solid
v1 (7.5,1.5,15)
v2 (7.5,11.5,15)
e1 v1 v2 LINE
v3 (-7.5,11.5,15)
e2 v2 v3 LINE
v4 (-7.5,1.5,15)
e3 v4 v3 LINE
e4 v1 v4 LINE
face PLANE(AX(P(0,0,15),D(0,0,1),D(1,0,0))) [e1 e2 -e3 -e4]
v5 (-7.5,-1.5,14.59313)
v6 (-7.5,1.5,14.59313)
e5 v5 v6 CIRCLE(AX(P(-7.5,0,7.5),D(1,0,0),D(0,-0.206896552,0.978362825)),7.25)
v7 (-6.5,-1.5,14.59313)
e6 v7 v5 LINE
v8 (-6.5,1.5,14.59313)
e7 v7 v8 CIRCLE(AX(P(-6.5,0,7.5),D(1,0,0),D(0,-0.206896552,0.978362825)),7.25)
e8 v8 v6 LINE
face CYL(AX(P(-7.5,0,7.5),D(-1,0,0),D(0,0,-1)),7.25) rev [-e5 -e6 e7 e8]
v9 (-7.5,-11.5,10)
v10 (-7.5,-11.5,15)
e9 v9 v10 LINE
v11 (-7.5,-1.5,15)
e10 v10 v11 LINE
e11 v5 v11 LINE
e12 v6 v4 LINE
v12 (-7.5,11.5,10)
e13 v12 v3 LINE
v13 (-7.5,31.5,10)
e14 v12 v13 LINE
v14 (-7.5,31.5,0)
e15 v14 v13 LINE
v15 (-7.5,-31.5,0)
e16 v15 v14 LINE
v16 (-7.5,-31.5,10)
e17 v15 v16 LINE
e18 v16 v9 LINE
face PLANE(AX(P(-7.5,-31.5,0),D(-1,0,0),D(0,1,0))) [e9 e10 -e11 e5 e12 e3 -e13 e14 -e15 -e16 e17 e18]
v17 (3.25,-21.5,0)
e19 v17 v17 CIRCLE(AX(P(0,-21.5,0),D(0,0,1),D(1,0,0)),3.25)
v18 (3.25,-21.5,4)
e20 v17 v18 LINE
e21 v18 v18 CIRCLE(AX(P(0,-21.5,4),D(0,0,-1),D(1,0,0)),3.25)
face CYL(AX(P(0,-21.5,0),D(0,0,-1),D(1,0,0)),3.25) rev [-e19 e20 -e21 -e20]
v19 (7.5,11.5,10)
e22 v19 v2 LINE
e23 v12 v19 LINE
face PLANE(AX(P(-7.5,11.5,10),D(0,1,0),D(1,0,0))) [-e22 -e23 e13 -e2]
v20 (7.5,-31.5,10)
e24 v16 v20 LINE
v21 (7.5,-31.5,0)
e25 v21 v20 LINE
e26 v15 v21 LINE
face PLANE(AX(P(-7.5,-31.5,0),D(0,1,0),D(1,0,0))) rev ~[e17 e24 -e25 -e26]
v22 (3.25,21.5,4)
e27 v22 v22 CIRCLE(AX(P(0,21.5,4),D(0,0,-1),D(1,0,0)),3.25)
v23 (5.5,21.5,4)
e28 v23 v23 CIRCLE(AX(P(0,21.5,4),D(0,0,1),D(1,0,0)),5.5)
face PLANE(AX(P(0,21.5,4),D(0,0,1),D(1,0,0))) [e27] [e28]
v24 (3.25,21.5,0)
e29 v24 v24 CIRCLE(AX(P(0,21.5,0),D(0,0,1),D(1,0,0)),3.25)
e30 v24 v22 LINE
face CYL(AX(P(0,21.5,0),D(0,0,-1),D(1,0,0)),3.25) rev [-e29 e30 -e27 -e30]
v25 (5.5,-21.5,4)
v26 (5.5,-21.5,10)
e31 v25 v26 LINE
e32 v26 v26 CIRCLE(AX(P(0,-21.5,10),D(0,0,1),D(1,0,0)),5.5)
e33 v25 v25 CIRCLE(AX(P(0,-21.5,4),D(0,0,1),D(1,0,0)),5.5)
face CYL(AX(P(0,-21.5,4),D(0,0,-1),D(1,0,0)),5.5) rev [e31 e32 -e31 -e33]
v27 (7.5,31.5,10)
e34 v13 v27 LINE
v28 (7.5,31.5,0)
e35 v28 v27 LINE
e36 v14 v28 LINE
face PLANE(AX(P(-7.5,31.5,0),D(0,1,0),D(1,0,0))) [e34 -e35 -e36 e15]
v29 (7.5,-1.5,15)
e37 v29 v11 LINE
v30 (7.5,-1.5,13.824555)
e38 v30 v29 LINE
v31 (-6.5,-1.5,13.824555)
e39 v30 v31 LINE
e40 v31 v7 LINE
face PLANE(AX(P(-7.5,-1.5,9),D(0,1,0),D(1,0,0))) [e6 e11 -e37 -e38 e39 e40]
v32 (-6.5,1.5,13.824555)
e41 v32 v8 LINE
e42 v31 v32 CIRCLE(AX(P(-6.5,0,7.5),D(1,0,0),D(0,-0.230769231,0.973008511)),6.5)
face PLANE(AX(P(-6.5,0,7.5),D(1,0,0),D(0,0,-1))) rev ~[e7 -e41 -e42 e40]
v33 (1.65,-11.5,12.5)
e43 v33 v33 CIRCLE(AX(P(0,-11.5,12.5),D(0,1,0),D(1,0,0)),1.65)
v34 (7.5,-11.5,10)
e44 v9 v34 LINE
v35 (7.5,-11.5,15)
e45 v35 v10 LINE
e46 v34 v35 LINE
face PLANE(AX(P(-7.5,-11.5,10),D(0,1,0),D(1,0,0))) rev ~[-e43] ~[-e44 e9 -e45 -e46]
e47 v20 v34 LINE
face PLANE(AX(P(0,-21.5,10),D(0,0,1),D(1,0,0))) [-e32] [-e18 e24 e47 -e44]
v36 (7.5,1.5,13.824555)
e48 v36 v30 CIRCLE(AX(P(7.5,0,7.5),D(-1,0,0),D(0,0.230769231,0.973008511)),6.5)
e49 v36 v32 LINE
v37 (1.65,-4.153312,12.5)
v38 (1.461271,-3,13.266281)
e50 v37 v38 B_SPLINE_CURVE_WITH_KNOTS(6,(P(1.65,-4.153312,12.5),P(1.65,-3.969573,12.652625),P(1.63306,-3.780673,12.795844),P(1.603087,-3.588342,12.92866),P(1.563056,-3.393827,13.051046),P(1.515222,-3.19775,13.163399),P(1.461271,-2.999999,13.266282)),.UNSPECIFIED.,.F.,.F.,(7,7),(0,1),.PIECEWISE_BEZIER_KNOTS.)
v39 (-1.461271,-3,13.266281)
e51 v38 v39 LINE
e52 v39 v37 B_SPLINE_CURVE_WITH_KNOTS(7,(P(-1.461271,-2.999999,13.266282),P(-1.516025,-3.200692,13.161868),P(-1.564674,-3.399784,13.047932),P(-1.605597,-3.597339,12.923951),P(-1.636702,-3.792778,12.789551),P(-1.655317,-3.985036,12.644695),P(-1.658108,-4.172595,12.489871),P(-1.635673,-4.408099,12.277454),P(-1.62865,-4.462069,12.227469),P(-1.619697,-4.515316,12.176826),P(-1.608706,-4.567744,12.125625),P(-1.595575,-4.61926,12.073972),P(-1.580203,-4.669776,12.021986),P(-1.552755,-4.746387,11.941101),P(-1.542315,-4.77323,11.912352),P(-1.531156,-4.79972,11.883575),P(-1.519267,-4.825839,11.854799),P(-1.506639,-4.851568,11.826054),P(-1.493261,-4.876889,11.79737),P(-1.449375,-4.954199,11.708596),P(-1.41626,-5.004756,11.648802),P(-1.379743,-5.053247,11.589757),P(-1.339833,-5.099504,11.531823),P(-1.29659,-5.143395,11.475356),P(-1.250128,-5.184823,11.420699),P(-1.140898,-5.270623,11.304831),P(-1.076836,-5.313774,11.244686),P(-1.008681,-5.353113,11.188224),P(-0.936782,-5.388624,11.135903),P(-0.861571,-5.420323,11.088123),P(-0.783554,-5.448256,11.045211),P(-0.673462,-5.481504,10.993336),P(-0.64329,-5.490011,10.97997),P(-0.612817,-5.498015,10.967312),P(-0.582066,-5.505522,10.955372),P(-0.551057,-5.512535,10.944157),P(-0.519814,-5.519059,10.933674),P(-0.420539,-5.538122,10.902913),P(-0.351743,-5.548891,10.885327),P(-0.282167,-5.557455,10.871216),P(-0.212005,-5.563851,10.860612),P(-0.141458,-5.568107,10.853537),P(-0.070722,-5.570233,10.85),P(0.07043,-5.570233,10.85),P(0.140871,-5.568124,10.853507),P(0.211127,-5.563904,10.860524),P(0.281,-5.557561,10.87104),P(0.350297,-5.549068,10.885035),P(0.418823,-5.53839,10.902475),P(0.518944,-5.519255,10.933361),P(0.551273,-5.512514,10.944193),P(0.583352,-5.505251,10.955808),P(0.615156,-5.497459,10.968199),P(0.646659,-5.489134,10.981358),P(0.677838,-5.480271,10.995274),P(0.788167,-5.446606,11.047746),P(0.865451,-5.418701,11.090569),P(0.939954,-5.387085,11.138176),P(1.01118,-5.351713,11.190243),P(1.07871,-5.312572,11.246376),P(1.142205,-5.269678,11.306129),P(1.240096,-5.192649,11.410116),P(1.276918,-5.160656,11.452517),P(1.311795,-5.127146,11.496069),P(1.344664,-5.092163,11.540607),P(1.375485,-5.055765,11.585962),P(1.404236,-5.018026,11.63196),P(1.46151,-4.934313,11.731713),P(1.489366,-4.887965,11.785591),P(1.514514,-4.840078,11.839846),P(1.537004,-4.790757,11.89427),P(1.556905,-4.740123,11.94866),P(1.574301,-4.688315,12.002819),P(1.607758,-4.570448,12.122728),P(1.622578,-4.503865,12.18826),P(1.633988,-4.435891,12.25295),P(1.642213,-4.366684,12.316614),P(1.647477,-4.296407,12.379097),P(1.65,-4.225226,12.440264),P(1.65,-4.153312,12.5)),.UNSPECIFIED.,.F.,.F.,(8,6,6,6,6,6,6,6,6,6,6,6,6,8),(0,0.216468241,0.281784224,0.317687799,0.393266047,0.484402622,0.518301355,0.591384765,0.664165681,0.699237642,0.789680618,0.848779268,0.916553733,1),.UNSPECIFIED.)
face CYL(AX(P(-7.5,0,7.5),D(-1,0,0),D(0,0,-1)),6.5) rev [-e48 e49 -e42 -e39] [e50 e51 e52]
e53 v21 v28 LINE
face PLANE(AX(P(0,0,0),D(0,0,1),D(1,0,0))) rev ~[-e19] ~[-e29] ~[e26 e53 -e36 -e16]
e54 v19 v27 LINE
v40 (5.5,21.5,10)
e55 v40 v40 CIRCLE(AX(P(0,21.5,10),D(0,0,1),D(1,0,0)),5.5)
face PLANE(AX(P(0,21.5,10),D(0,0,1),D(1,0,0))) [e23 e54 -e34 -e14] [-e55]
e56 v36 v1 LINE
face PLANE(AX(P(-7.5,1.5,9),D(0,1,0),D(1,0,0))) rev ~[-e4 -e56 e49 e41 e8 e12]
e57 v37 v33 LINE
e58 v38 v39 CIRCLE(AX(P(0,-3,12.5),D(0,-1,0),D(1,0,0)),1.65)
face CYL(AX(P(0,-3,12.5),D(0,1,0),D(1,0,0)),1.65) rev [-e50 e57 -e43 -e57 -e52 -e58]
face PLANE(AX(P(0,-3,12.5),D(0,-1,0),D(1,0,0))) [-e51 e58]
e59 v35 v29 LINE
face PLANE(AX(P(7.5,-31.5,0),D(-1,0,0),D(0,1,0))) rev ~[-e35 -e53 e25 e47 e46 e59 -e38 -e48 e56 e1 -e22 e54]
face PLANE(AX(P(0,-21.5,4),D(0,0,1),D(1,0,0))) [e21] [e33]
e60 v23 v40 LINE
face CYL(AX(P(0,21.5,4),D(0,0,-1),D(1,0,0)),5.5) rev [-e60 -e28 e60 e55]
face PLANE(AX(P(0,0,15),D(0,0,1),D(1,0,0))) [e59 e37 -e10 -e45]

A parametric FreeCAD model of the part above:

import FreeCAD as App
import Part
import Sketcher

V = App.Vector
Q = App.Units.Quantity

doc = App.newDocument("Part")
params = doc.addObject("Spreadsheet::Sheet", "Params")
for row, (alias, value) in enumerate([
    ("sketch1_diameter", "3.3 mm"),
    ("pad1_length", "10 mm"),
    ("sketch2_width", "15 mm"),
    ("sketch2_height", "3 mm"),
    ("pad2_length", "10 mm"),
    ("sketch3_diameter", "14.5 mm"),
    ("pad3_length", "1 mm"),
    ("sketch4_diameter", "13 mm"),
    ("pad4_length", "32 mm"),
    ("sketch5_diameter", "6.5 mm"),
    ("pad5_length", "10 mm"),
    ("sketch6_diameter", "11 mm"),
    ("pad6_length", "6 mm"),
    ("sketch7_diameter", "6.5 mm"),
    ("pad7_length", "10 mm"),
    ("sketch8_diameter", "11 mm"),
    ("pad8_length", "6 mm"),
    ("sketch9_width", "15 mm"),
    ("sketch9_height", "20 mm"),
    ("pad9_length", "20 mm"),
    ("sketch10_width", "15 mm"),
    ("sketch10_height", "20 mm"),
    ("pad10_length", "20 mm"),
    ("sketch11_width", "15 mm"),
    ("sketch11_height", "63 mm"),
    ("pad11_length", "15 mm"),
], start=1):
    params.set(f"A{row}", alias)
    params.set(f"B{row}", "=" + value)
    params.setAlias(f"B{row}", alias)

body = doc.addObject("PartDesign::Body", "Body")

# Sketch on XZ plane
sketch1 = body.newObject("Sketcher::SketchObject", "Sketch")
sketch1.AttachmentSupport = (doc.getObject("XZ_Plane"), [""])
sketch1.MapMode = "FlatFace"
sketch1.AttachmentOffset = App.Placement(V(0, 0, 3), App.Rotation())
sketch1.addGeometry(Part.Circle(V(0, 12.5, 0), V(0, 0, 1), 1.6), False)
sketch1.addConstraint([
    Sketcher.Constraint("PointOnObject", 0, 3, -2),
    Sketcher.Constraint("Diameter", 0, Q("3.3 mm")),
    Sketcher.Constraint("DistanceY", -1, 1, 0, 3, Q("12.5 mm")),
])
sketch1.setExpression("Constraints[1]", "Params.sketch1_diameter")
pad1 = body.newObject("PartDesign::Pad", "Pad")
pad1.Profile = sketch1
pad1.setExpression("Length", "Params.pad1_length")
body2 = doc.addObject("PartDesign::Body", "Body001")

# Sketch on XY plane
sketch2 = body2.newObject("Sketcher::SketchObject", "Sketch001")
sketch2.AttachmentSupport = (doc.getObject("XY_Plane001"), [""])
sketch2.MapMode = "FlatFace"
sketch2.AttachmentOffset = App.Placement(V(0, 0, 9), App.Rotation())
sketch2.addGeometry([
    Part.LineSegment(V(-7.5, 1.5, 0), V(-7.5, -1.5, 0)),
    Part.LineSegment(V(-7.5, -1.5, 0), V(7.5, -1.5, 0)),
    Part.LineSegment(V(7.5, -1.5, 0), V(7.5, 1.5, 0)),
    Part.LineSegment(V(7.5, 1.5, 0), V(-7.5, 1.5, 0)),
], False)
sketch2.addConstraint([
    Sketcher.Constraint("Coincident", 0, 2, 1, 1),
    Sketcher.Constraint("Coincident", 1, 2, 2, 1),
    Sketcher.Constraint("Coincident", 2, 2, 3, 1),
    Sketcher.Constraint("Coincident", 3, 2, 0, 1),
    Sketcher.Constraint("Vertical", 0),
    Sketcher.Constraint("Horizontal", 1),
    Sketcher.Constraint("Vertical", 2),
    Sketcher.Constraint("Horizontal", 3),
    Sketcher.Constraint("Symmetric", 0, 2, 2, 2, -1, 1),
    Sketcher.Constraint("DistanceX", 1, 1, 1, 2, Q("15 mm")),
    Sketcher.Constraint("DistanceY", 0, 2, 0, 1, Q("3 mm")),
])
sketch2.setExpression("Constraints[9]", "Params.sketch2_width")
sketch2.setExpression("Constraints[10]", "Params.sketch2_height")
pad2 = body2.newObject("PartDesign::Pad", "Pad001")
pad2.Profile = sketch2
pad2.setExpression("Length", "Params.pad2_length")
body3 = doc.addObject("PartDesign::Body", "Body002")

# Sketch on XY plane
sketch3 = body3.newObject("Sketcher::SketchObject", "Sketch002")
sketch3.AttachmentSupport = (doc.getObject("XY_Plane002"), [""])
sketch3.MapMode = "FlatFace"
sketch3.addGeometry(Part.Circle(V(0, 0, 0), V(0, 0, 1), 7), False)
sketch3.addConstraint([
    Sketcher.Constraint("Coincident", 0, 3, -1, 1),
    Sketcher.Constraint("Diameter", 0, Q("14.5 mm")),
])
sketch3.setExpression("Constraints[1]", "Params.sketch3_diameter")
pad3 = body3.newObject("PartDesign::Pad", "Pad002")
pad3.Profile = sketch3
pad3.setExpression("Length", "Params.pad3_length")
body4 = doc.addObject("PartDesign::Body", "Body003")

# Sketch on XY plane
sketch4 = body4.newObject("Sketcher::SketchObject", "Sketch003")
sketch4.AttachmentSupport = (doc.getObject("XY_Plane003"), [""])
sketch4.MapMode = "FlatFace"
sketch4.addGeometry(Part.Circle(V(0, 0, 0), V(0, 0, 1), 6), False)
sketch4.addConstraint([
    Sketcher.Constraint("Coincident", 0, 3, -1, 1),
    Sketcher.Constraint("Diameter", 0, Q("13 mm")),
])
sketch4.setExpression("Constraints[1]", "Params.sketch4_diameter")
pad4 = body4.newObject("PartDesign::Pad", "Pad003")
pad4.Profile = sketch4
pad4.setExpression("Length", "Params.pad4_length")
doc.recompute()

boolean = body4.newObject("PartDesign::Boolean", "Boolean")
boolean.Type = "Fuse"
boolean.addObjects([body3])
body5 = doc.addObject("PartDesign::Body", "Body004")
doc.recompute()

body4.Placement = App.Placement(V(-7.5, 0, 7.5), App.Rotation(V(0, 1, 0), 90))
boolean2 = body5.newObject("PartDesign::Boolean", "Boolean001")
boolean2.Type = "Fuse"
boolean2.addObjects([body4])
body6 = doc.addObject("PartDesign::Body", "Body005")

# Sketch on XY plane
sketch5 = body6.newObject("Sketcher::SketchObject", "Sketch004")
sketch5.AttachmentSupport = (doc.getObject("XY_Plane005"), [""])
sketch5.MapMode = "FlatFace"
sketch5.addGeometry(Part.Circle(V(0, 0, 0), V(0, 0, 1), 3.2), False)
sketch5.addConstraint([
    Sketcher.Constraint("Coincident", 0, 3, -1, 1),
    Sketcher.Constraint("Diameter", 0, Q("6.5 mm")),
])
sketch5.setExpression("Constraints[1]", "Params.sketch5_diameter")
pad5 = body6.newObject("PartDesign::Pad", "Pad004")
pad5.Profile = sketch5
pad5.setExpression("Length", "Params.pad5_length")
body7 = doc.addObject("PartDesign::Body", "Body006")

# Sketch on XY plane
sketch6 = body7.newObject("Sketcher::SketchObject", "Sketch005")
sketch6.AttachmentSupport = (doc.getObject("XY_Plane006"), [""])
sketch6.MapMode = "FlatFace"
sketch6.AttachmentOffset = App.Placement(V(0, 0, 4), App.Rotation())
sketch6.addGeometry(Part.Circle(V(0, 0, 0), V(0, 0, 1), 6), False)
sketch6.addConstraint([
    Sketcher.Constraint("Coincident", 0, 3, -1, 1),
    Sketcher.Constraint("Diameter", 0, Q("11 mm")),
])
sketch6.setExpression("Constraints[1]", "Params.sketch6_diameter")
pad6 = body7.newObject("PartDesign::Pad", "Pad005")
pad6.Profile = sketch6
pad6.setExpression("Length", "Params.pad6_length")
doc.recompute()

boolean3 = body7.newObject("PartDesign::Boolean", "Boolean002")
boolean3.Type = "Fuse"
boolean3.addObjects([body6])
body8 = doc.addObject("PartDesign::Body", "Body007")
doc.recompute()

body7.Placement = App.Placement(V(0, -21.5, 0), App.Rotation(V(0, 0, 1), 0))
boolean4 = body8.newObject("PartDesign::Boolean", "Boolean003")
boolean4.Type = "Fuse"
boolean4.addObjects([body7])
body9 = doc.addObject("PartDesign::Body", "Body008")

# Sketch on XY plane
sketch7 = body9.newObject("Sketcher::SketchObject", "Sketch006")
sketch7.AttachmentSupport = (doc.getObject("XY_Plane008"), [""])
sketch7.MapMode = "FlatFace"
sketch7.addGeometry(Part.Circle(V(0, 0, 0), V(0, 0, 1), 3.2), False)
sketch7.addConstraint([
    Sketcher.Constraint("Coincident", 0, 3, -1, 1),
    Sketcher.Constraint("Diameter", 0, Q("6.5 mm")),
])
sketch7.setExpression("Constraints[1]", "Params.sketch7_diameter")
pad7 = body9.newObject("PartDesign::Pad", "Pad006")
pad7.Profile = sketch7
pad7.setExpression("Length", "Params.pad7_length")
body10 = doc.addObject("PartDesign::Body", "Body009")

# Sketch on XY plane
sketch8 = body10.newObject("Sketcher::SketchObject", "Sketch007")
sketch8.AttachmentSupport = (doc.getObject("XY_Plane009"), [""])
sketch8.MapMode = "FlatFace"
sketch8.AttachmentOffset = App.Placement(V(0, 0, 4), App.Rotation())
sketch8.addGeometry(Part.Circle(V(0, 0, 0), V(0, 0, 1), 6), False)
sketch8.addConstraint([
    Sketcher.Constraint("Coincident", 0, 3, -1, 1),
    Sketcher.Constraint("Diameter", 0, Q("11 mm")),
])
sketch8.setExpression("Constraints[1]", "Params.sketch8_diameter")
pad8 = body10.newObject("PartDesign::Pad", "Pad007")
pad8.Profile = sketch8
pad8.setExpression("Length", "Params.pad8_length")
doc.recompute()

boolean5 = body10.newObject("PartDesign::Boolean", "Boolean004")
boolean5.Type = "Fuse"
boolean5.addObjects([body9])
body11 = doc.addObject("PartDesign::Body", "Body010")
body11.AllowCompound = True
doc.recompute()

body10.Placement = App.Placement(V(0, 21.5, 0), App.Rotation(V(0, 0, 1), 0))
boolean6 = body11.newObject("PartDesign::Boolean", "Boolean005")
boolean6.Type = "Fuse"
boolean6.addObjects([body10])
doc.recompute()

boolean7 = body11.newObject("PartDesign::Boolean", "Boolean006")
boolean7.Type = "Fuse"
boolean7.addObjects([body8])
body12 = doc.addObject("PartDesign::Body", "Body011")

# Sketch on XY plane
sketch9 = body12.newObject("Sketcher::SketchObject", "Sketch008")
sketch9.AttachmentSupport = (doc.getObject("XY_Plane011"), [""])
sketch9.MapMode = "FlatFace"
sketch9.AttachmentOffset = App.Placement(V(0, 0, 10), App.Rotation())
sketch9.addGeometry([
    Part.LineSegment(V(-15, -12, 0), V(-15, -32, 0)),
    Part.LineSegment(V(-15, -32, 0), V(0, -32, 0)),
    Part.LineSegment(V(0, -32, 0), V(0, -12, 0)),
    Part.LineSegment(V(0, -12, 0), V(-15, -12, 0)),
], False)
sketch9.addConstraint([
    Sketcher.Constraint("Coincident", 0, 2, 1, 1),
    Sketcher.Constraint("Coincident", 1, 2, 2, 1),
    Sketcher.Constraint("Coincident", 2, 2, 3, 1),
    Sketcher.Constraint("Coincident", 3, 2, 0, 1),
    Sketcher.Constraint("Vertical", 0),
    Sketcher.Constraint("Horizontal", 1),
    Sketcher.Constraint("Vertical", 2),
    Sketcher.Constraint("Horizontal", 3),
    Sketcher.Constraint("PointOnObject", 1, 2, -2),
    Sketcher.Constraint("DistanceX", 1, 1, 1, 2, Q("15 mm")),
    Sketcher.Constraint("DistanceY", 0, 2, 0, 1, Q("20 mm")),
    Sketcher.Constraint("DistanceY", 0, 2, -1, 1, Q("31.5 mm")),
])
sketch9.setExpression("Constraints[9]", "Params.sketch9_width")
sketch9.setExpression("Constraints[10]", "Params.sketch9_height")
pad9 = body12.newObject("PartDesign::Pad", "Pad008")
pad9.Profile = sketch9
pad9.setExpression("Length", "Params.pad9_length")
body13 = doc.addObject("PartDesign::Body", "Body012")
body13.AllowCompound = True

# Sketch on XY plane
sketch10 = body13.newObject("Sketcher::SketchObject", "Sketch009")
sketch10.AttachmentSupport = (doc.getObject("XY_Plane012"), [""])
sketch10.MapMode = "FlatFace"
sketch10.AttachmentOffset = App.Placement(V(0, 0, 10), App.Rotation())
sketch10.addGeometry([
    Part.LineSegment(V(-15, 32, 0), V(-15, 12, 0)),
    Part.LineSegment(V(-15, 12, 0), V(0, 12, 0)),
    Part.LineSegment(V(0, 12, 0), V(0, 32, 0)),
    Part.LineSegment(V(0, 32, 0), V(-15, 32, 0)),
], False)
sketch10.addConstraint([
    Sketcher.Constraint("Coincident", 0, 2, 1, 1),
    Sketcher.Constraint("Coincident", 1, 2, 2, 1),
    Sketcher.Constraint("Coincident", 2, 2, 3, 1),
    Sketcher.Constraint("Coincident", 3, 2, 0, 1),
    Sketcher.Constraint("Vertical", 0),
    Sketcher.Constraint("Horizontal", 1),
    Sketcher.Constraint("Vertical", 2),
    Sketcher.Constraint("Horizontal", 3),
    Sketcher.Constraint("PointOnObject", 1, 2, -2),
    Sketcher.Constraint("DistanceX", 1, 1, 1, 2, Q("15 mm")),
    Sketcher.Constraint("DistanceY", 0, 2, 0, 1, Q("20 mm")),
    Sketcher.Constraint("DistanceY", -1, 1, 0, 2, Q("11.5 mm")),
])
sketch10.setExpression("Constraints[9]", "Params.sketch10_width")
sketch10.setExpression("Constraints[10]", "Params.sketch10_height")
pad10 = body13.newObject("PartDesign::Pad", "Pad009")
pad10.Profile = sketch10
pad10.setExpression("Length", "Params.pad10_length")
doc.recompute()

boolean8 = body13.newObject("PartDesign::Boolean", "Boolean007")
boolean8.Type = "Fuse"
boolean8.addObjects([body12])
body14 = doc.addObject("PartDesign::Body", "Body013")

# Sketch on XY plane
sketch11 = body14.newObject("Sketcher::SketchObject", "Sketch010")
sketch11.AttachmentSupport = (doc.getObject("XY_Plane013"), [""])
sketch11.MapMode = "FlatFace"
sketch11.addGeometry([
    Part.LineSegment(V(-15, 32, 0), V(-15, -32, 0)),
    Part.LineSegment(V(-15, -32, 0), V(0, -32, 0)),
    Part.LineSegment(V(0, -32, 0), V(0, 32, 0)),
    Part.LineSegment(V(0, 32, 0), V(-15, 32, 0)),
], False)
sketch11.addConstraint([
    Sketcher.Constraint("Coincident", 0, 2, 1, 1),
    Sketcher.Constraint("Coincident", 1, 2, 2, 1),
    Sketcher.Constraint("Coincident", 2, 2, 3, 1),
    Sketcher.Constraint("Coincident", 3, 2, 0, 1),
    Sketcher.Constraint("Vertical", 0),
    Sketcher.Constraint("Horizontal", 1),
    Sketcher.Constraint("Vertical", 2),
    Sketcher.Constraint("Horizontal", 3),
    Sketcher.Constraint("Symmetric", 1, 2, 2, 2, -1, 1),
    Sketcher.Constraint("DistanceX", 1, 1, 1, 2, Q("15 mm")),
    Sketcher.Constraint("DistanceY", 0, 2, 0, 1, Q("63 mm")),
])
sketch11.setExpression("Constraints[9]", "Params.sketch11_width")
sketch11.setExpression("Constraints[10]", "Params.sketch11_height")
pad11 = body14.newObject("PartDesign::Pad", "Pad010")
pad11.Profile = sketch11
pad11.setExpression("Length", "Params.pad11_length")
doc.recompute()

boolean9 = body14.newObject("PartDesign::Boolean", "Boolean008")
boolean9.Type = "Cut"
boolean9.addObjects([body13])
body15 = doc.addObject("PartDesign::Body", "Body014")
doc.recompute()

body14.Placement = App.Placement(V(7.5, 0, 0), App.Rotation(V(0, 0, 1), 0))
boolean10 = body15.newObject("PartDesign::Boolean", "Boolean009")
boolean10.Type = "Fuse"
boolean10.addObjects([body14])
doc.recompute()

boolean11 = body15.newObject("PartDesign::Boolean", "Boolean010")
boolean11.Type = "Cut"
boolean11.addObjects([body11])
doc.recompute()

boolean12 = body15.newObject("PartDesign::Boolean", "Boolean011")
boolean12.Type = "Cut"
boolean12.addObjects([body5])
doc.recompute()

boolean13 = body15.newObject("PartDesign::Boolean", "Boolean012")
boolean13.Type = "Cut"
boolean13.addObjects([body2])
doc.recompute()

boolean14 = body15.newObject("PartDesign::Boolean", "Boolean013")
boolean14.Type = "Cut"
boolean14.addObjects([body])

doc.recompute()
